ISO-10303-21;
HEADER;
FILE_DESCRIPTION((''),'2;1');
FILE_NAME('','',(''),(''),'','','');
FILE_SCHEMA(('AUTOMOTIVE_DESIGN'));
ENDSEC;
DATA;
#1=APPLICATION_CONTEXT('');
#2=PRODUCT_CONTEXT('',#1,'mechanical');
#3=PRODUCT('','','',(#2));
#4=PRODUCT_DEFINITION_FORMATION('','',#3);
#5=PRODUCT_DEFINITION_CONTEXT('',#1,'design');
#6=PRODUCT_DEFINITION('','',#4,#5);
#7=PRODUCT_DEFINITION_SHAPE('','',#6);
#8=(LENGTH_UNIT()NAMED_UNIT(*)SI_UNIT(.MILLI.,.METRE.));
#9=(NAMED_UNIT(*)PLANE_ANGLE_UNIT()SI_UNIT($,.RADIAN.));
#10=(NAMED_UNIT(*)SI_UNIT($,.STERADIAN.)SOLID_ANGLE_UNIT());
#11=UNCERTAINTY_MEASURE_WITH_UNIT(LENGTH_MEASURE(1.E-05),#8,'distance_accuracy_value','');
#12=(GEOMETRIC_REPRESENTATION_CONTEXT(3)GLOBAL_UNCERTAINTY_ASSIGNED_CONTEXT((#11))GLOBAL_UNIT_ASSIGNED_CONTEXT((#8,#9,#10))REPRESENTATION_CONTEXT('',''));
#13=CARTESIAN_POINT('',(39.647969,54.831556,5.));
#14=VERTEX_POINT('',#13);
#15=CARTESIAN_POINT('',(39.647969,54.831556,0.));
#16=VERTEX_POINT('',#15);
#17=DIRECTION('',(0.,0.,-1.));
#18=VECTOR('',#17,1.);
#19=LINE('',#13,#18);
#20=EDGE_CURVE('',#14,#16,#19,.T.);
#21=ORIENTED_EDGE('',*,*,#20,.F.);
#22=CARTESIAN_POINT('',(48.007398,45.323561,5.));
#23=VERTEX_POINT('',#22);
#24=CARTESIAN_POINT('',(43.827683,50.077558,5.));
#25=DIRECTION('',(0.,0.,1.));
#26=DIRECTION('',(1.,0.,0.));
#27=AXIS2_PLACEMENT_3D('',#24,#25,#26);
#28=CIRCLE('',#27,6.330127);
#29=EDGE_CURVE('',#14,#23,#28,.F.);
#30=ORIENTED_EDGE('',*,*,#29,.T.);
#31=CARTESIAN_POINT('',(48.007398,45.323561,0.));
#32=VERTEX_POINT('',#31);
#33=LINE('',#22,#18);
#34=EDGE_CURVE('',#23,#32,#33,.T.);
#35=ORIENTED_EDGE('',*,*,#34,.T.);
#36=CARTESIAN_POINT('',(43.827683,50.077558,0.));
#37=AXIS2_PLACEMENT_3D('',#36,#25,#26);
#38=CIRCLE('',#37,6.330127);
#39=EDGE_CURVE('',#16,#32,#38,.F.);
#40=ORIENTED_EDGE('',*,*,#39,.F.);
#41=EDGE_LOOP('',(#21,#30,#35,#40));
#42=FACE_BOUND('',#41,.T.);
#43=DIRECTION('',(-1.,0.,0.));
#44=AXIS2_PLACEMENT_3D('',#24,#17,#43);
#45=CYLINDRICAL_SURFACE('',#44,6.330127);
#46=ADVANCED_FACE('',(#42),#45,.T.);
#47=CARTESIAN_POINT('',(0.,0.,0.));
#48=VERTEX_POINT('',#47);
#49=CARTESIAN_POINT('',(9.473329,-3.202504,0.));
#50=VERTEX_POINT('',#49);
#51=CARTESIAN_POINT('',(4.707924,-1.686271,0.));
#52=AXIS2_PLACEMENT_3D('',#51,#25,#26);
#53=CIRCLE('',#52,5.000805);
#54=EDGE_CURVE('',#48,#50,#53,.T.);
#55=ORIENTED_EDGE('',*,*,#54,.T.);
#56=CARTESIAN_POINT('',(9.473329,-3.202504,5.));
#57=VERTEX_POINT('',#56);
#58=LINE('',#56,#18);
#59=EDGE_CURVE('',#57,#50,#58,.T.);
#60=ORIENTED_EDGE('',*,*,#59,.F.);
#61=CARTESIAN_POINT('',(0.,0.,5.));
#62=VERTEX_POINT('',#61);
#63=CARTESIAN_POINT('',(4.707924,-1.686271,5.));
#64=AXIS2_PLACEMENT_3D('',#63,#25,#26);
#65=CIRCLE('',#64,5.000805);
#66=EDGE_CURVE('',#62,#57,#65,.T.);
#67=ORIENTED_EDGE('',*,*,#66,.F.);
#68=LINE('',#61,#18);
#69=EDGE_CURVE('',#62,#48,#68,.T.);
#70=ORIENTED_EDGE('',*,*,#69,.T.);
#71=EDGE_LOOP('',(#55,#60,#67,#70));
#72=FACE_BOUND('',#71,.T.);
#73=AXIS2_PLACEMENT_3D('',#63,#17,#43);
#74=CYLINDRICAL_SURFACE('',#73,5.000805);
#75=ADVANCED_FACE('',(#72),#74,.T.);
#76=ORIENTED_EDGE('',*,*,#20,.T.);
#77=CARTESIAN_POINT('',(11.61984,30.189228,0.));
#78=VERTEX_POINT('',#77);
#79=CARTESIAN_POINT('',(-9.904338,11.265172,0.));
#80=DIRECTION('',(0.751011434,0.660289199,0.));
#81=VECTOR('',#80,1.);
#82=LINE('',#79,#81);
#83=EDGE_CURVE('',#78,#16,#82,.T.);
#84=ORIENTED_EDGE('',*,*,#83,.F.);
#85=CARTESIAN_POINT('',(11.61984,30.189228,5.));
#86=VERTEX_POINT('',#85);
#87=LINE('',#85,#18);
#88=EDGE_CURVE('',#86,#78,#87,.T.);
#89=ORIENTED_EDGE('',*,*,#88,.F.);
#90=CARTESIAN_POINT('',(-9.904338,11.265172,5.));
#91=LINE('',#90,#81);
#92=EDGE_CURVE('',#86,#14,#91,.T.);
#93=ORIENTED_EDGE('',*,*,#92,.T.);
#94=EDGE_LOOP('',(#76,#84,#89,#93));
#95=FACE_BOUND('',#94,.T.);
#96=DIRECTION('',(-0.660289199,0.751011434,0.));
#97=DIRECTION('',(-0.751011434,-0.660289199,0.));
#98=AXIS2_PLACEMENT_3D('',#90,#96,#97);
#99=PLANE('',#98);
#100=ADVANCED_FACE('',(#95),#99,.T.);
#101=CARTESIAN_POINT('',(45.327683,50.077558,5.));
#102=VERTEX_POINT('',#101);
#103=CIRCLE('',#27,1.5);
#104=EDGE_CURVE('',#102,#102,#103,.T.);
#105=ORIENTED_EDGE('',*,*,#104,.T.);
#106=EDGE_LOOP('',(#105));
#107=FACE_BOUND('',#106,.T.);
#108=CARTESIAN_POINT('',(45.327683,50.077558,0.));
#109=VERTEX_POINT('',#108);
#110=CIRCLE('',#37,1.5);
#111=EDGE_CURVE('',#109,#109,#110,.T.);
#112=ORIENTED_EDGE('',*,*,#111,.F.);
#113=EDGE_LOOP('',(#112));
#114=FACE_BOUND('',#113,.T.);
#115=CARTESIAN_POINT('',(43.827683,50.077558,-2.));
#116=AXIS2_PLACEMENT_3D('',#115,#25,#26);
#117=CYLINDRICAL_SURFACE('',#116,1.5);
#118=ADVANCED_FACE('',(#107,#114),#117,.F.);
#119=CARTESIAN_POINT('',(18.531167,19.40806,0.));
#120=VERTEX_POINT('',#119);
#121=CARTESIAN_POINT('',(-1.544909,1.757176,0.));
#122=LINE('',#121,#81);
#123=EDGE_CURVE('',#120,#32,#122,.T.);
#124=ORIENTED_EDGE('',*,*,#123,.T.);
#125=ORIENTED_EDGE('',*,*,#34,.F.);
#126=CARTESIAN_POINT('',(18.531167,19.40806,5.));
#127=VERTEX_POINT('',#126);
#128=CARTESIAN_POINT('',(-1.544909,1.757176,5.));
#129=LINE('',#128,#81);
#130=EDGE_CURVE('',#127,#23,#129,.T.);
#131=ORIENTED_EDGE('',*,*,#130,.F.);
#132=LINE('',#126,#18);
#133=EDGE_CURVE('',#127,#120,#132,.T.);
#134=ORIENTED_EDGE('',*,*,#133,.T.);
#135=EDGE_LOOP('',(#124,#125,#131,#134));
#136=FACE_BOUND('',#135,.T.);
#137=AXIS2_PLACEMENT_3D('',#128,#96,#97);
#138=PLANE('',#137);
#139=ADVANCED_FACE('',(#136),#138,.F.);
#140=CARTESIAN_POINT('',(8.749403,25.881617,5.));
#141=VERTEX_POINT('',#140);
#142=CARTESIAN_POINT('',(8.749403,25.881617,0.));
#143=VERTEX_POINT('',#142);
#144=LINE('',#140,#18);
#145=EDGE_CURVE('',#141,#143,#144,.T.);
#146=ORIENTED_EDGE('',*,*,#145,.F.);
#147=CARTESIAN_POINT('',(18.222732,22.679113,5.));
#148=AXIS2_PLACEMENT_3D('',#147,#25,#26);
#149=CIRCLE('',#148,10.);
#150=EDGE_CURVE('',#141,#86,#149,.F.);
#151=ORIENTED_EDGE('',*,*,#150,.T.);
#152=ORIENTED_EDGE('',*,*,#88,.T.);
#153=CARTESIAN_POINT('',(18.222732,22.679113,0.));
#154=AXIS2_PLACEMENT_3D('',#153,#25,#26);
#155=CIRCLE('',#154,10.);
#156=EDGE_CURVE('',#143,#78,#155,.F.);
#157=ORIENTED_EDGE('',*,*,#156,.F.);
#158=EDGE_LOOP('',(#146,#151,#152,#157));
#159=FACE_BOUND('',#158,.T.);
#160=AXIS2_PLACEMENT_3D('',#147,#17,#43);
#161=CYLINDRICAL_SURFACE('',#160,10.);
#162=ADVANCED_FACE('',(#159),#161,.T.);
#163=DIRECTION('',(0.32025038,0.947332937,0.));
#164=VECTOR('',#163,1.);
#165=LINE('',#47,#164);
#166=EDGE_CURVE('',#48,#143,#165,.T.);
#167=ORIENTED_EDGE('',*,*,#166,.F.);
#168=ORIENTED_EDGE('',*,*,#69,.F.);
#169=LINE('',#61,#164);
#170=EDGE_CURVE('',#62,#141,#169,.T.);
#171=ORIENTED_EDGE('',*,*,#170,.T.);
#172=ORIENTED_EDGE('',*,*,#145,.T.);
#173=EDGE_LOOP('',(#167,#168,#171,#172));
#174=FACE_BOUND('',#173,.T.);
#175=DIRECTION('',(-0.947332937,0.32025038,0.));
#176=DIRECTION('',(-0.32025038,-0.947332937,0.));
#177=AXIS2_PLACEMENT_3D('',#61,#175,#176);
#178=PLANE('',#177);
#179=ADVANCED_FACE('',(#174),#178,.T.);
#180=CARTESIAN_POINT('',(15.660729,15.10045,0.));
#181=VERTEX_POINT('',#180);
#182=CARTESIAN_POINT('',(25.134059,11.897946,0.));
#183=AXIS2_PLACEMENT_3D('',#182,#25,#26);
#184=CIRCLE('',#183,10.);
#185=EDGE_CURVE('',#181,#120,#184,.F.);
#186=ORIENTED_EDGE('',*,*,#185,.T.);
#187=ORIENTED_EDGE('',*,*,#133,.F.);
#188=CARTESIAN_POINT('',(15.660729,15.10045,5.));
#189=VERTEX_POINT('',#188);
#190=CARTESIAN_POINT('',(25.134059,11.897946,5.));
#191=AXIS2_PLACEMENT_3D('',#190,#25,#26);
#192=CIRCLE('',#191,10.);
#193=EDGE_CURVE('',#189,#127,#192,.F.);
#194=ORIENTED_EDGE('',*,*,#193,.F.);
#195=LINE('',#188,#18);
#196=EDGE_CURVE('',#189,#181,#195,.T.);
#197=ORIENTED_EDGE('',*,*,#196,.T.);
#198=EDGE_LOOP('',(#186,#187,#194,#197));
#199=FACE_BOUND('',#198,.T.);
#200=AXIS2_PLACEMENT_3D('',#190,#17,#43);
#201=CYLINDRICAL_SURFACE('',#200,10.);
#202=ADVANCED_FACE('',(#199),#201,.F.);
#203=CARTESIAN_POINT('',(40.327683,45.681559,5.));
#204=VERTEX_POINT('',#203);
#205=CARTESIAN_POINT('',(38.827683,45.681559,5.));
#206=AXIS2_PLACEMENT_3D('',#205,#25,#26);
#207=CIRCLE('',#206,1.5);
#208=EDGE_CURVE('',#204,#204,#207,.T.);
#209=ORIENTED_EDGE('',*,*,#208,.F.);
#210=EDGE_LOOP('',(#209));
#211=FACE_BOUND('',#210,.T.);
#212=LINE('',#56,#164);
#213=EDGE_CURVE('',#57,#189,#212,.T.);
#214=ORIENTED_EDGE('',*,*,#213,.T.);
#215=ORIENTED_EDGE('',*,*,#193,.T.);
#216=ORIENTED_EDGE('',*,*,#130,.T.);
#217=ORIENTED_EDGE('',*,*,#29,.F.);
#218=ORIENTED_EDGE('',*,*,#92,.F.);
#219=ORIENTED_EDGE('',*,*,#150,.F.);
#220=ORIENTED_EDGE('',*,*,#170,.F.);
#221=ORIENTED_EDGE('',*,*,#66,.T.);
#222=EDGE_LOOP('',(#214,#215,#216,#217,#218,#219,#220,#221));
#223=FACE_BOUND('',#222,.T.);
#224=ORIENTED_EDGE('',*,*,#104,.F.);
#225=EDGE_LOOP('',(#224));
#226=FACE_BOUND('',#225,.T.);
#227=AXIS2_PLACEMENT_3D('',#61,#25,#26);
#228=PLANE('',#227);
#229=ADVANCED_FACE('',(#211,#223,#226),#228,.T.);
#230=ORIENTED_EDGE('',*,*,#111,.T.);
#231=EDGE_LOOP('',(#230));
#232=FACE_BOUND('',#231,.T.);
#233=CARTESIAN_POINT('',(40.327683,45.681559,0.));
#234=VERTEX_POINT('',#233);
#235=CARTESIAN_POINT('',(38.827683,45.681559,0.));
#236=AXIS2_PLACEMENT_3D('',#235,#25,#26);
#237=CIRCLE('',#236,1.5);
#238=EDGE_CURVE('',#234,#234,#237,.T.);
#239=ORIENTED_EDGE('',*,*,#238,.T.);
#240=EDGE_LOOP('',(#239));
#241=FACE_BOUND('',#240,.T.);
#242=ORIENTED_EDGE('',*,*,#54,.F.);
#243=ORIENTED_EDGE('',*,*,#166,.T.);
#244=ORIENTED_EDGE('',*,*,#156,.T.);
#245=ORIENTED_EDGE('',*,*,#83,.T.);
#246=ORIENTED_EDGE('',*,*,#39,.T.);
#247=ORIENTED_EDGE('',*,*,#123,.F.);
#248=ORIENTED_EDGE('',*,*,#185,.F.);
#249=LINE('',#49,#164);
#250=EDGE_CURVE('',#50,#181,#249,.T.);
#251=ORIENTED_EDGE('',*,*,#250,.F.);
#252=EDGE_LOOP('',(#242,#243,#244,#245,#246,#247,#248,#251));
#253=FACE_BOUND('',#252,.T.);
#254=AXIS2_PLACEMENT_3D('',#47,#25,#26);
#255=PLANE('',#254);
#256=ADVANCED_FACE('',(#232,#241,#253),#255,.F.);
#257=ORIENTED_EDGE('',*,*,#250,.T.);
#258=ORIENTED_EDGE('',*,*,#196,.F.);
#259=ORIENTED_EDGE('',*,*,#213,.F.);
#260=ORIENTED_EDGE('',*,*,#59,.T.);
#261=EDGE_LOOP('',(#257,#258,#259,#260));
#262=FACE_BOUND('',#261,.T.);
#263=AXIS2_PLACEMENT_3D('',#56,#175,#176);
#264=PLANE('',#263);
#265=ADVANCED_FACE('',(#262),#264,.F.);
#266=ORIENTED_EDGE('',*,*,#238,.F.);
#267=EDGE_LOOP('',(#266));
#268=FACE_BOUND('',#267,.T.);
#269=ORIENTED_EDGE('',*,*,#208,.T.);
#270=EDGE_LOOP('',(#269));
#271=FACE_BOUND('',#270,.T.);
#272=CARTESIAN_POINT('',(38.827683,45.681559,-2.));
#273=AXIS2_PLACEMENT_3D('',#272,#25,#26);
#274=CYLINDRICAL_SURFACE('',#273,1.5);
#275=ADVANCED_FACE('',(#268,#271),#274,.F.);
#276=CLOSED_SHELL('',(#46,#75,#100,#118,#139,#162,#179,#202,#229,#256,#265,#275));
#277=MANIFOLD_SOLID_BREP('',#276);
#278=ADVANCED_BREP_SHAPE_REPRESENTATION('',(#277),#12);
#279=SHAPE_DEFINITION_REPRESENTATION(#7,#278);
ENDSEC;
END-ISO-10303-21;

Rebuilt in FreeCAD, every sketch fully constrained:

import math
import FreeCAD as App
import Part
import Sketcher
from FreeCAD import Vector

doc = App.newDocument("Part")
body = doc.addObject("PartDesign::Body", "Body")

# Sketch on XY plane
sketch1 = doc.addObject("Sketcher::SketchObject", "Sketch")
body.addObject(sketch1)
sketch1.AttachmentSupport = (doc.XY_Plane, [""])
sketch1.MapMode = "FlatFace"
sketch1.addGeometry(Part.LineSegment(Vector(8.749403, 25.881617, 0), Vector(0, 0, 0)), False)
sketch1.addGeometry(Part.ArcOfCircle(Part.Circle(Vector(4.707924, -1.686271, 0), Vector(0, 0, 1), 5.000805), math.radians(160.29363), math.radians(342.350235)), False)
sketch1.addGeometry(Part.LineSegment(Vector(9.473329, -3.202504, 0), Vector(15.660729, 15.10045, 0)), False)
sketch1.addGeometry(Part.ArcOfCircle(Part.Circle(Vector(25.134059, 11.897946, 0), Vector(0, 0, 1), 10), math.radians(131.321932), math.radians(161.321933)), False)
sketch1.addGeometry(Part.LineSegment(Vector(18.531167, 19.40806, 0), Vector(48.007398, 45.323561, 0)), False)
sketch1.addGeometry(Part.ArcOfCircle(Part.Circle(Vector(43.827683, 50.077558, 0), Vector(0, 0, 1), 6.330127), math.radians(-48.678068), math.radians(131.321932)), False)
sketch1.addGeometry(Part.LineSegment(Vector(39.647969, 54.831556, 0), Vector(11.61984, 30.189228, 0)), False)
sketch1.addGeometry(Part.ArcOfCircle(Part.Circle(Vector(18.222732, 22.679113, 0), Vector(0, 0, 1), 10), math.radians(131.321932), math.radians(161.321933)), False)
sketch1.addConstraint(Sketcher.Constraint("Coincident", 0, 2, 1, 1))
sketch1.addConstraint(Sketcher.Constraint("Coincident", 1, 2, 2, 1))
sketch1.addConstraint(Sketcher.Constraint("Tangent", 2, 2, 3, 2))
sketch1.addConstraint(Sketcher.Constraint("Tangent", 3, 1, 4, 1))
sketch1.addConstraint(Sketcher.Constraint("Tangent", 4, 2, 5, 1))
sketch1.addConstraint(Sketcher.Constraint("Tangent", 5, 2, 6, 1))
sketch1.addConstraint(Sketcher.Constraint("Tangent", 6, 2, 7, 1))
sketch1.addConstraint(Sketcher.Constraint("Tangent", 7, 2, 0, 1))
sketch1.addConstraint(Sketcher.Constraint("Coincident", 0, 2, -1, 1))
sketch1.addConstraint(Sketcher.Constraint("Equal", 3, 7))
sketch1.addConstraint(Sketcher.Constraint("Parallel", 0, 2))
sketch1.addConstraint(Sketcher.Constraint("Parallel", 4, 6))
sketch1.addConstraint(Sketcher.Constraint("Radius", 3, 10.0))
sketch1.addConstraint(Sketcher.Constraint("Radius", 1, 5.000805))
sketch1.addConstraint(Sketcher.Constraint("Radius", 5, 6.330127))
sketch1.addConstraint(Sketcher.Constraint("DistanceX", 1, 2, 2, 2, 6.1874))
sketch1.addConstraint(Sketcher.Constraint("DistanceY", 3, 1, 4, 2, 25.9155))
sketch1.addConstraint(Sketcher.Constraint("DistanceX", 3, 1, 5, 2, 21.116802))
sketch1.addConstraint(Sketcher.Constraint("Distance", 0, 27.320508))
sketch1.addConstraint(Sketcher.Constraint("Distance", 2, 19.320508))
sketch1.addConstraint(Sketcher.Constraint("Distance", 6, 37.320508))
pad1 = doc.addObject("PartDesign::Pad", "Pad")
body.addObject(pad1)
pad1.Profile = sketch1
pad1.Length = 5

# Sketch on XY plane
sketch2 = doc.addObject("Sketcher::SketchObject", "Sketch001")
body.addObject(sketch2)
sketch2.AttachmentSupport = (doc.XY_Plane, [""])
sketch2.MapMode = "FlatFace"
sketch2.AttachmentOffset = App.Placement(Vector(0, 0, 5), App.Rotation())
sketch2.addGeometry(Part.Circle(Vector(43.827683, 50.077558, 0), Vector(0, 0, 1), 1.5), False)
sketch2.addGeometry(Part.Circle(Vector(38.827683, 45.681559, 0), Vector(0, 0, 1), 1.5), False)
sketch2.addConstraint(Sketcher.Constraint("Equal", 0, 1))
sketch2.addConstraint(Sketcher.Constraint("Diameter", 0, 3.0))
sketch2.addConstraint(Sketcher.Constraint("DistanceX", 1, 3, 0, 3, 5.0))
sketch2.addConstraint(Sketcher.Constraint("DistanceY", 1, 3, 0, 3, 4.396))
sketch2.addConstraint(Sketcher.Constraint("DistanceY", -1, 1, 0, 3, 50.077558))
sketch2.addConstraint(Sketcher.Constraint("DistanceX", -1, 1, 0, 3, 43.827683))
pocket1 = doc.addObject("PartDesign::Pocket", "Pocket")
body.addObject(pocket1)
pocket1.Profile = sketch2
pocket1.Length = 7

doc.recompute()
